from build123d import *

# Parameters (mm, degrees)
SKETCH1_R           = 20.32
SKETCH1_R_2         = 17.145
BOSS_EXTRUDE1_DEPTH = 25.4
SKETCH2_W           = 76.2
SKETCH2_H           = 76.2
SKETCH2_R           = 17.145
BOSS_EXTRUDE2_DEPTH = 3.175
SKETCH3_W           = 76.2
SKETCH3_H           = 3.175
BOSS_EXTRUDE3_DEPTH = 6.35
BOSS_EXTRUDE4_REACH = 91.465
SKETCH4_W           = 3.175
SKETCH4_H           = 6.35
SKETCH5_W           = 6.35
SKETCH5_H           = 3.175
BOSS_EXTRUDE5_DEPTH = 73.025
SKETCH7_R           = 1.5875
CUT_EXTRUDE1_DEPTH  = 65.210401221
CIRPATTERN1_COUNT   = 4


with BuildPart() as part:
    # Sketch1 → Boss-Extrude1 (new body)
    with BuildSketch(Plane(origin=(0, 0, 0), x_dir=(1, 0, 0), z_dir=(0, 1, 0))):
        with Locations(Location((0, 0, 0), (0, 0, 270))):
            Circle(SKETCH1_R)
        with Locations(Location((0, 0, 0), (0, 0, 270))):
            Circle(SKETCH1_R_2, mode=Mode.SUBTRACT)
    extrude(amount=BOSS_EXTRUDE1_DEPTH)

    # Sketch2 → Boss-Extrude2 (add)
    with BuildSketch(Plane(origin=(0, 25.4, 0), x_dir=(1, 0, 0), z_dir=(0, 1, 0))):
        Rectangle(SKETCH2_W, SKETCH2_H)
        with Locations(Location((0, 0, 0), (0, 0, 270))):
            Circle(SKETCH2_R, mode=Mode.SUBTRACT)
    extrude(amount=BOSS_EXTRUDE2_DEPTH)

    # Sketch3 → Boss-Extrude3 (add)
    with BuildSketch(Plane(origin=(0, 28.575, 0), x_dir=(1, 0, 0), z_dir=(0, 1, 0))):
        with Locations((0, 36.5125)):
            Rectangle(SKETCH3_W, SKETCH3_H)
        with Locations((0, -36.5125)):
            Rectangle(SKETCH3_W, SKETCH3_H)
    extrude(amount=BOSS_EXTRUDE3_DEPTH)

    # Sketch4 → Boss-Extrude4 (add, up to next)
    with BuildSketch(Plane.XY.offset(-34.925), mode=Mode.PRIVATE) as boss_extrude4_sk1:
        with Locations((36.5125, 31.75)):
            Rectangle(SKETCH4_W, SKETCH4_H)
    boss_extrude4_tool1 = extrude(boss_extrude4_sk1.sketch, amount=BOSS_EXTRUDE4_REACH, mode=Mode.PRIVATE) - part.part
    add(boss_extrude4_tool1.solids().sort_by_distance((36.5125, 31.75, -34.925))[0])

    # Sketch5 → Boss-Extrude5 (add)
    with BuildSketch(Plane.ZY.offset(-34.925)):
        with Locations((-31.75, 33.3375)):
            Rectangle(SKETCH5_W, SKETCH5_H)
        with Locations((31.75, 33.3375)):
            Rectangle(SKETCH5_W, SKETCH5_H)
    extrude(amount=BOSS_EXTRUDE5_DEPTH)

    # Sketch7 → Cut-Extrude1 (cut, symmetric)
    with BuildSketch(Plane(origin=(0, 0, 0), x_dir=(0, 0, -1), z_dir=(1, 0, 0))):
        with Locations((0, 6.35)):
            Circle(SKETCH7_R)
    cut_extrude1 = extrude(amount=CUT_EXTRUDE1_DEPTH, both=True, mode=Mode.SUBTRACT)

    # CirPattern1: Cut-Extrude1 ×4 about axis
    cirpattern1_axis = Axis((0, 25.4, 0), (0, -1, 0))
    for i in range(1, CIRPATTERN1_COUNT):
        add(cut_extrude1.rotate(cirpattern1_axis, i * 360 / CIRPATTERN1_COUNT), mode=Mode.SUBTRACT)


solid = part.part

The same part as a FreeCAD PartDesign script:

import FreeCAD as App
import Part
import Sketcher
Q = App.Units.Quantity

doc = App.newDocument("Part")
params = doc.addObject("Spreadsheet::Sheet", "Params")
for row, (alias, value) in enumerate([
    ("sketch1_diameter", "1.6 in"),
    ("sketch1_diameter2", "1.35 in"),
    ("pad1_length", "1 in"),
    ("sketch2_diameter", "1.35 in"),
    ("sketch2_width", "3 in"),
    ("pad2_length", "0.125 in"),
    ("sketch3_width", "3 in"),
    ("sketch3_height", "0.125 in"),
    ("pad3_length", "0.25 in"),
    ("sketch4_height", "0.25 in"),
    ("sketch4_width", "0.125 in"),
    ("sketch5_height", "0.25 in"),
    ("sketch5_width", "0.125 in"),
    ("pad5_length", "2.875 in"),
    ("sketch6_diameter", "0.125 in"),
    ("pocket1_length", "130.420802 mm"),
], start=1):
    params.set(f"A{row}", alias)
    params.set(f"B{row}", "=" + value)
    params.setAlias(f"B{row}", alias)

body = doc.addObject("PartDesign::Body", "Body")

sketch1 = body.newObject("Sketcher::SketchObject", "Sketch")
sketch1.AttachmentSupport = (doc.getObject("XZ_Plane"), [""])
sketch1.MapMode = "FlatFace"
sketch1.addGeometry(Part.Circle(App.Vector(0, 0, 0), App.Vector(0, 0, 1), 20.32), False)
sketch1.addGeometry(Part.Circle(App.Vector(0, 0, 0), App.Vector(0, 0, 1), 17.145), False)
sketch1.addConstraint(Sketcher.Constraint("Coincident", 0, 3, -1, 1))
sketch1.addConstraint(Sketcher.Constraint("Coincident", 1, 3, -1, 1))
sketch1.addConstraint(Sketcher.Constraint("Diameter", 0, Q("1.6 in")))
sketch1.addConstraint(Sketcher.Constraint("Diameter", 1, Q("1.35 in")))
sketch1.setExpression("Constraints[2]", "Params.sketch1_diameter")
sketch1.setExpression("Constraints[3]", "Params.sketch1_diameter2")
pad1 = body.newObject("PartDesign::Pad", "Pad")
pad1.Profile = sketch1
pad1.setExpression("Length", "Params.pad1_length")
pad1.Reversed = True

sketch2 = body.newObject("Sketcher::SketchObject", "Sketch001")
sketch2.AttachmentSupport = (doc.getObject("XZ_Plane"), [""])
sketch2.MapMode = "FlatFace"
sketch2.AttachmentOffset = App.Placement(App.Vector(0, 0, -1 * 25.4), App.Rotation())
sketch2.addGeometry(Part.LineSegment(App.Vector(-38.1, -38.1, 0), App.Vector(-38.1, 38.1, 0)), False)
sketch2.addGeometry(Part.LineSegment(App.Vector(-38.1, 38.1, 0), App.Vector(38.1, 38.1, 0)), False)
sketch2.addGeometry(Part.LineSegment(App.Vector(38.1, 38.1, 0), App.Vector(38.1, -38.1, 0)), False)
sketch2.addGeometry(Part.LineSegment(App.Vector(38.1, -38.1, 0), App.Vector(-38.1, -38.1, 0)), False)
sketch2.addGeometry(Part.Circle(App.Vector(0, 0, 0), App.Vector(0, 0, 1), 17.145), False)
sketch2.addConstraint(Sketcher.Constraint("Coincident", 0, 2, 1, 1))
sketch2.addConstraint(Sketcher.Constraint("Coincident", 1, 2, 2, 1))
sketch2.addConstraint(Sketcher.Constraint("Coincident", 2, 2, 3, 1))
sketch2.addConstraint(Sketcher.Constraint("Coincident", 3, 2, 0, 1))
sketch2.addConstraint(Sketcher.Constraint("Vertical", 0))
sketch2.addConstraint(Sketcher.Constraint("Horizontal", 1))
sketch2.addConstraint(Sketcher.Constraint("Vertical", 2))
sketch2.addConstraint(Sketcher.Constraint("Horizontal", 3))
sketch2.addConstraint(Sketcher.Constraint("Coincident", 4, 3, -1, 1))
sketch2.addConstraint(Sketcher.Constraint("Symmetric", 0, 2, 2, 2, -1, 1))
sketch2.addConstraint(Sketcher.Constraint("Equal", 3, 0))
sketch2.addConstraint(Sketcher.Constraint("Diameter", 4, Q("1.35 in")))
sketch2.addConstraint(Sketcher.Constraint("DistanceX", 1, 1, 1, 2, Q("3 in")))
sketch2.setExpression("Constraints[11]", "Params.sketch2_diameter")
sketch2.setExpression("Constraints[12]", "Params.sketch2_width")
pad2 = body.newObject("PartDesign::Pad", "Pad001")
pad2.Profile = sketch2
pad2.setExpression("Length", "Params.pad2_length")
pad2.Reversed = True

sketch3 = body.newObject("Sketcher::SketchObject", "Sketch002")
sketch3.AttachmentSupport = (doc.getObject("XZ_Plane"), [""])
sketch3.MapMode = "FlatFace"
sketch3.AttachmentOffset = App.Placement(App.Vector(0, 0, -1.125 * 25.4), App.Rotation())
sketch3.addGeometry(Part.LineSegment(App.Vector(-38.1, -38.1, 0), App.Vector(-38.1, -34.925, 0)), False)
sketch3.addGeometry(Part.LineSegment(App.Vector(-38.1, -34.925, 0), App.Vector(38.1, -34.925, 0)), False)
sketch3.addGeometry(Part.LineSegment(App.Vector(38.1, -34.925, 0), App.Vector(38.1, -38.1, 0)), False)
sketch3.addGeometry(Part.LineSegment(App.Vector(38.1, -38.1, 0), App.Vector(-38.1, -38.1, 0)), False)
sketch3.addGeometry(Part.LineSegment(App.Vector(-38.1, 34.925, 0), App.Vector(-38.1, 38.1, 0)), False)
sketch3.addGeometry(Part.LineSegment(App.Vector(-38.1, 38.1, 0), App.Vector(38.1, 38.1, 0)), False)
sketch3.addGeometry(Part.LineSegment(App.Vector(38.1, 38.1, 0), App.Vector(38.1, 34.925, 0)), False)
sketch3.addGeometry(Part.LineSegment(App.Vector(38.1, 34.925, 0), App.Vector(-38.1, 34.925, 0)), False)
sketch3.addConstraint(Sketcher.Constraint("Coincident", 0, 2, 1, 1))
sketch3.addConstraint(Sketcher.Constraint("Coincident", 1, 2, 2, 1))
sketch3.addConstraint(Sketcher.Constraint("Coincident", 2, 2, 3, 1))
sketch3.addConstraint(Sketcher.Constraint("Coincident", 3, 2, 0, 1))
sketch3.addConstraint(Sketcher.Constraint("Coincident", 4, 2, 5, 1))
sketch3.addConstraint(Sketcher.Constraint("Coincident", 5, 2, 6, 1))
sketch3.addConstraint(Sketcher.Constraint("Coincident", 6, 2, 7, 1))
sketch3.addConstraint(Sketcher.Constraint("Coincident", 7, 2, 4, 1))
sketch3.addConstraint(Sketcher.Constraint("Vertical", 0))
sketch3.addConstraint(Sketcher.Constraint("Horizontal", 1))
sketch3.addConstraint(Sketcher.Constraint("Vertical", 2))
sketch3.addConstraint(Sketcher.Constraint("Horizontal", 3))
sketch3.addConstraint(Sketcher.Constraint("Vertical", 4))
sketch3.addConstraint(Sketcher.Constraint("Horizontal", 5))
sketch3.addConstraint(Sketcher.Constraint("Vertical", 6))
sketch3.addConstraint(Sketcher.Constraint("Horizontal", 7))
sketch3.addConstraint(Sketcher.Constraint("Symmetric", 2, 2, 4, 2, -1, 1))
sketch3.addConstraint(Sketcher.Constraint("Symmetric", 0, 2, 6, 2, -1, 1))
sketch3.addConstraint(Sketcher.Constraint("Vertical", 3, 2, 4, 2))
sketch3.addConstraint(Sketcher.Constraint("DistanceX", 1, 1, 1, 2, Q("3 in")))
sketch3.addConstraint(Sketcher.Constraint("DistanceY", 3, 2, 4, 2, Q("3 in")))
sketch3.addConstraint(Sketcher.Constraint("DistanceY", 0, 1, 0, 2, Q("0.125 in")))
sketch3.setExpression("Constraints[19]", "Params.sketch3_width")
sketch3.setExpression("Constraints[21]", "Params.sketch3_height")
pad3 = body.newObject("PartDesign::Pad", "Pad002")
pad3.Profile = sketch3
pad3.setExpression("Length", "Params.pad3_length")
pad3.Reversed = True

sketch4 = body.newObject("Sketcher::SketchObject", "Sketch003")
sketch4.AttachmentSupport = (doc.getObject("XY_Plane"), [""])
sketch4.MapMode = "FlatFace"
sketch4.AttachmentOffset = App.Placement(App.Vector(0, 0, -1.375 * 25.4), App.Rotation())
sketch4.addGeometry(Part.LineSegment(App.Vector(34.925, 34.925, 0), App.Vector(34.925, 28.575, 0)), False)
sketch4.addGeometry(Part.LineSegment(App.Vector(34.925, 28.575, 0), App.Vector(38.1, 28.575, 0)), False)
sketch4.addGeometry(Part.LineSegment(App.Vector(38.1, 28.575, 0), App.Vector(38.1, 34.925, 0)), False)
sketch4.addGeometry(Part.LineSegment(App.Vector(38.1, 34.925, 0), App.Vector(34.925, 34.925, 0)), False)
sketch4.addConstraint(Sketcher.Constraint("Coincident", 0, 2, 1, 1))
sketch4.addConstraint(Sketcher.Constraint("Coincident", 1, 2, 2, 1))
sketch4.addConstraint(Sketcher.Constraint("Coincident", 2, 2, 3, 1))
sketch4.addConstraint(Sketcher.Constraint("Coincident", 3, 2, 0, 1))
sketch4.addConstraint(Sketcher.Constraint("Vertical", 0))
sketch4.addConstraint(Sketcher.Constraint("Horizontal", 1))
sketch4.addConstraint(Sketcher.Constraint("Vertical", 2))
sketch4.addConstraint(Sketcher.Constraint("Horizontal", 3))
sketch4.addConstraint(Sketcher.Constraint("DistanceY", 0, 2, 0, 1, Q("0.25 in")))
sketch4.addConstraint(Sketcher.Constraint("DistanceX", -1, 1, 1, 2, Q("1.5 in")))
sketch4.addConstraint(Sketcher.Constraint("DistanceX", 1, 1, 1, 2, Q("0.125 in")))
sketch4.addConstraint(Sketcher.Constraint("DistanceY", -1, 1, 0, 2, Q("1.125 in")))
sketch4.setExpression("Constraints[8]", "Params.sketch4_height")
sketch4.setExpression("Constraints[10]", "Params.sketch4_width")
pad4 = body.newObject("PartDesign::Pad", "Pad003")
pad4.Profile = sketch4
pad4.Type = "UpToFirst"

sketch5 = body.newObject("Sketcher::SketchObject", "Sketch004")
sketch5.AttachmentSupport = (doc.getObject("YZ_Plane"), [""])
sketch5.MapMode = "FlatFace"
sketch5.AttachmentOffset = App.Placement(App.Vector(0, 0, 1.375 * 25.4), App.Rotation())
sketch5.addGeometry(Part.LineSegment(App.Vector(34.925, -34.925, 0), App.Vector(31.75, -34.925, 0)), False)
sketch5.addGeometry(Part.LineSegment(App.Vector(31.75, -34.925, 0), App.Vector(31.75, -28.575, 0)), False)
sketch5.addGeometry(Part.LineSegment(App.Vector(31.75, -28.575, 0), App.Vector(34.925, -28.575, 0)), False)
sketch5.addGeometry(Part.LineSegment(App.Vector(34.925, -28.575, 0), App.Vector(34.925, -34.925, 0)), False)
sketch5.addGeometry(Part.LineSegment(App.Vector(34.925, 28.575, 0), App.Vector(31.75, 28.575, 0)), False)
sketch5.addGeometry(Part.LineSegment(App.Vector(31.75, 28.575, 0), App.Vector(31.75, 34.925, 0)), False)
sketch5.addGeometry(Part.LineSegment(App.Vector(31.75, 34.925, 0), App.Vector(34.925, 34.925, 0)), False)
sketch5.addGeometry(Part.LineSegment(App.Vector(34.925, 34.925, 0), App.Vector(34.925, 28.575, 0)), False)
sketch5.addConstraint(Sketcher.Constraint("Coincident", 0, 2, 1, 1))
sketch5.addConstraint(Sketcher.Constraint("Coincident", 1, 2, 2, 1))
sketch5.addConstraint(Sketcher.Constraint("Coincident", 2, 2, 3, 1))
sketch5.addConstraint(Sketcher.Constraint("Coincident", 3, 2, 0, 1))
sketch5.addConstraint(Sketcher.Constraint("Coincident", 4, 2, 5, 1))
sketch5.addConstraint(Sketcher.Constraint("Coincident", 5, 2, 6, 1))
sketch5.addConstraint(Sketcher.Constraint("Coincident", 6, 2, 7, 1))
sketch5.addConstraint(Sketcher.Constraint("Coincident", 7, 2, 4, 1))
sketch5.addConstraint(Sketcher.Constraint("Horizontal", 0))
sketch5.addConstraint(Sketcher.Constraint("Vertical", 1))
sketch5.addConstraint(Sketcher.Constraint("Horizontal", 2))
sketch5.addConstraint(Sketcher.Constraint("Vertical", 3))
sketch5.addConstraint(Sketcher.Constraint("Horizontal", 4))
sketch5.addConstraint(Sketcher.Constraint("Vertical", 5))
sketch5.addConstraint(Sketcher.Constraint("Horizontal", 6))
sketch5.addConstraint(Sketcher.Constraint("Vertical", 7))
sketch5.addConstraint(Sketcher.Constraint("Symmetric", 1, 2, 4, 2, -1))
sketch5.addConstraint(Sketcher.Constraint("Symmetric", 3, 2, 6, 2, -1))
sketch5.addConstraint(Sketcher.Constraint("DistanceY", 1, 1, 1, 2, Q("0.25 in")))
sketch5.addConstraint(Sketcher.Constraint("DistanceY", 0, 2, 4, 2, Q("2.5 in")))
sketch5.addConstraint(Sketcher.Constraint("DistanceX", 0, 2, 0, 1, Q("0.125 in")))
sketch5.addConstraint(Sketcher.Constraint("DistanceX", -1, 1, 0, 2, Q("1.25 in")))
sketch5.setExpression("Constraints[18]", "Params.sketch5_height")
sketch5.setExpression("Constraints[20]", "Params.sketch5_width")
pad5 = body.newObject("PartDesign::Pad", "Pad004")
pad5.Profile = sketch5
pad5.setExpression("Length", "Params.pad5_length")
pad5.Reversed = True

sketch6 = body.newObject("Sketcher::SketchObject", "Sketch005")
sketch6.AttachmentSupport = (doc.getObject("YZ_Plane"), [""])
sketch6.MapMode = "FlatFace"
sketch6.addGeometry(Part.Circle(App.Vector(6.35, 0, 0), App.Vector(0, 0, 1), 1.5875), False)
sketch6.addConstraint(Sketcher.Constraint("PointOnObject", 0, 3, -1))
sketch6.addConstraint(Sketcher.Constraint("Diameter", 0, Q("0.125 in")))
sketch6.addConstraint(Sketcher.Constraint("DistanceX", -1, 1, 0, 3, Q("0.25 in")))
sketch6.setExpression("Constraints[1]", "Params.sketch6_diameter")
pocket1 = body.newObject("PartDesign::Pocket", "Pocket")
pocket1.Profile = sketch6
pocket1.setExpression("Length", "Params.pocket1_length")
pocket1.Midplane = True
doc.recompute()

polarpattern = body.newObject("PartDesign::PolarPattern", "PolarPattern")
polarpattern.Originals = [pocket1]
polarpattern.Axis = (doc.getObject("Y_Axis"), [""])
polarpattern.Angle = 360
polarpattern.Occurrences = 4
body.Tip = polarpattern

doc.recompute()
